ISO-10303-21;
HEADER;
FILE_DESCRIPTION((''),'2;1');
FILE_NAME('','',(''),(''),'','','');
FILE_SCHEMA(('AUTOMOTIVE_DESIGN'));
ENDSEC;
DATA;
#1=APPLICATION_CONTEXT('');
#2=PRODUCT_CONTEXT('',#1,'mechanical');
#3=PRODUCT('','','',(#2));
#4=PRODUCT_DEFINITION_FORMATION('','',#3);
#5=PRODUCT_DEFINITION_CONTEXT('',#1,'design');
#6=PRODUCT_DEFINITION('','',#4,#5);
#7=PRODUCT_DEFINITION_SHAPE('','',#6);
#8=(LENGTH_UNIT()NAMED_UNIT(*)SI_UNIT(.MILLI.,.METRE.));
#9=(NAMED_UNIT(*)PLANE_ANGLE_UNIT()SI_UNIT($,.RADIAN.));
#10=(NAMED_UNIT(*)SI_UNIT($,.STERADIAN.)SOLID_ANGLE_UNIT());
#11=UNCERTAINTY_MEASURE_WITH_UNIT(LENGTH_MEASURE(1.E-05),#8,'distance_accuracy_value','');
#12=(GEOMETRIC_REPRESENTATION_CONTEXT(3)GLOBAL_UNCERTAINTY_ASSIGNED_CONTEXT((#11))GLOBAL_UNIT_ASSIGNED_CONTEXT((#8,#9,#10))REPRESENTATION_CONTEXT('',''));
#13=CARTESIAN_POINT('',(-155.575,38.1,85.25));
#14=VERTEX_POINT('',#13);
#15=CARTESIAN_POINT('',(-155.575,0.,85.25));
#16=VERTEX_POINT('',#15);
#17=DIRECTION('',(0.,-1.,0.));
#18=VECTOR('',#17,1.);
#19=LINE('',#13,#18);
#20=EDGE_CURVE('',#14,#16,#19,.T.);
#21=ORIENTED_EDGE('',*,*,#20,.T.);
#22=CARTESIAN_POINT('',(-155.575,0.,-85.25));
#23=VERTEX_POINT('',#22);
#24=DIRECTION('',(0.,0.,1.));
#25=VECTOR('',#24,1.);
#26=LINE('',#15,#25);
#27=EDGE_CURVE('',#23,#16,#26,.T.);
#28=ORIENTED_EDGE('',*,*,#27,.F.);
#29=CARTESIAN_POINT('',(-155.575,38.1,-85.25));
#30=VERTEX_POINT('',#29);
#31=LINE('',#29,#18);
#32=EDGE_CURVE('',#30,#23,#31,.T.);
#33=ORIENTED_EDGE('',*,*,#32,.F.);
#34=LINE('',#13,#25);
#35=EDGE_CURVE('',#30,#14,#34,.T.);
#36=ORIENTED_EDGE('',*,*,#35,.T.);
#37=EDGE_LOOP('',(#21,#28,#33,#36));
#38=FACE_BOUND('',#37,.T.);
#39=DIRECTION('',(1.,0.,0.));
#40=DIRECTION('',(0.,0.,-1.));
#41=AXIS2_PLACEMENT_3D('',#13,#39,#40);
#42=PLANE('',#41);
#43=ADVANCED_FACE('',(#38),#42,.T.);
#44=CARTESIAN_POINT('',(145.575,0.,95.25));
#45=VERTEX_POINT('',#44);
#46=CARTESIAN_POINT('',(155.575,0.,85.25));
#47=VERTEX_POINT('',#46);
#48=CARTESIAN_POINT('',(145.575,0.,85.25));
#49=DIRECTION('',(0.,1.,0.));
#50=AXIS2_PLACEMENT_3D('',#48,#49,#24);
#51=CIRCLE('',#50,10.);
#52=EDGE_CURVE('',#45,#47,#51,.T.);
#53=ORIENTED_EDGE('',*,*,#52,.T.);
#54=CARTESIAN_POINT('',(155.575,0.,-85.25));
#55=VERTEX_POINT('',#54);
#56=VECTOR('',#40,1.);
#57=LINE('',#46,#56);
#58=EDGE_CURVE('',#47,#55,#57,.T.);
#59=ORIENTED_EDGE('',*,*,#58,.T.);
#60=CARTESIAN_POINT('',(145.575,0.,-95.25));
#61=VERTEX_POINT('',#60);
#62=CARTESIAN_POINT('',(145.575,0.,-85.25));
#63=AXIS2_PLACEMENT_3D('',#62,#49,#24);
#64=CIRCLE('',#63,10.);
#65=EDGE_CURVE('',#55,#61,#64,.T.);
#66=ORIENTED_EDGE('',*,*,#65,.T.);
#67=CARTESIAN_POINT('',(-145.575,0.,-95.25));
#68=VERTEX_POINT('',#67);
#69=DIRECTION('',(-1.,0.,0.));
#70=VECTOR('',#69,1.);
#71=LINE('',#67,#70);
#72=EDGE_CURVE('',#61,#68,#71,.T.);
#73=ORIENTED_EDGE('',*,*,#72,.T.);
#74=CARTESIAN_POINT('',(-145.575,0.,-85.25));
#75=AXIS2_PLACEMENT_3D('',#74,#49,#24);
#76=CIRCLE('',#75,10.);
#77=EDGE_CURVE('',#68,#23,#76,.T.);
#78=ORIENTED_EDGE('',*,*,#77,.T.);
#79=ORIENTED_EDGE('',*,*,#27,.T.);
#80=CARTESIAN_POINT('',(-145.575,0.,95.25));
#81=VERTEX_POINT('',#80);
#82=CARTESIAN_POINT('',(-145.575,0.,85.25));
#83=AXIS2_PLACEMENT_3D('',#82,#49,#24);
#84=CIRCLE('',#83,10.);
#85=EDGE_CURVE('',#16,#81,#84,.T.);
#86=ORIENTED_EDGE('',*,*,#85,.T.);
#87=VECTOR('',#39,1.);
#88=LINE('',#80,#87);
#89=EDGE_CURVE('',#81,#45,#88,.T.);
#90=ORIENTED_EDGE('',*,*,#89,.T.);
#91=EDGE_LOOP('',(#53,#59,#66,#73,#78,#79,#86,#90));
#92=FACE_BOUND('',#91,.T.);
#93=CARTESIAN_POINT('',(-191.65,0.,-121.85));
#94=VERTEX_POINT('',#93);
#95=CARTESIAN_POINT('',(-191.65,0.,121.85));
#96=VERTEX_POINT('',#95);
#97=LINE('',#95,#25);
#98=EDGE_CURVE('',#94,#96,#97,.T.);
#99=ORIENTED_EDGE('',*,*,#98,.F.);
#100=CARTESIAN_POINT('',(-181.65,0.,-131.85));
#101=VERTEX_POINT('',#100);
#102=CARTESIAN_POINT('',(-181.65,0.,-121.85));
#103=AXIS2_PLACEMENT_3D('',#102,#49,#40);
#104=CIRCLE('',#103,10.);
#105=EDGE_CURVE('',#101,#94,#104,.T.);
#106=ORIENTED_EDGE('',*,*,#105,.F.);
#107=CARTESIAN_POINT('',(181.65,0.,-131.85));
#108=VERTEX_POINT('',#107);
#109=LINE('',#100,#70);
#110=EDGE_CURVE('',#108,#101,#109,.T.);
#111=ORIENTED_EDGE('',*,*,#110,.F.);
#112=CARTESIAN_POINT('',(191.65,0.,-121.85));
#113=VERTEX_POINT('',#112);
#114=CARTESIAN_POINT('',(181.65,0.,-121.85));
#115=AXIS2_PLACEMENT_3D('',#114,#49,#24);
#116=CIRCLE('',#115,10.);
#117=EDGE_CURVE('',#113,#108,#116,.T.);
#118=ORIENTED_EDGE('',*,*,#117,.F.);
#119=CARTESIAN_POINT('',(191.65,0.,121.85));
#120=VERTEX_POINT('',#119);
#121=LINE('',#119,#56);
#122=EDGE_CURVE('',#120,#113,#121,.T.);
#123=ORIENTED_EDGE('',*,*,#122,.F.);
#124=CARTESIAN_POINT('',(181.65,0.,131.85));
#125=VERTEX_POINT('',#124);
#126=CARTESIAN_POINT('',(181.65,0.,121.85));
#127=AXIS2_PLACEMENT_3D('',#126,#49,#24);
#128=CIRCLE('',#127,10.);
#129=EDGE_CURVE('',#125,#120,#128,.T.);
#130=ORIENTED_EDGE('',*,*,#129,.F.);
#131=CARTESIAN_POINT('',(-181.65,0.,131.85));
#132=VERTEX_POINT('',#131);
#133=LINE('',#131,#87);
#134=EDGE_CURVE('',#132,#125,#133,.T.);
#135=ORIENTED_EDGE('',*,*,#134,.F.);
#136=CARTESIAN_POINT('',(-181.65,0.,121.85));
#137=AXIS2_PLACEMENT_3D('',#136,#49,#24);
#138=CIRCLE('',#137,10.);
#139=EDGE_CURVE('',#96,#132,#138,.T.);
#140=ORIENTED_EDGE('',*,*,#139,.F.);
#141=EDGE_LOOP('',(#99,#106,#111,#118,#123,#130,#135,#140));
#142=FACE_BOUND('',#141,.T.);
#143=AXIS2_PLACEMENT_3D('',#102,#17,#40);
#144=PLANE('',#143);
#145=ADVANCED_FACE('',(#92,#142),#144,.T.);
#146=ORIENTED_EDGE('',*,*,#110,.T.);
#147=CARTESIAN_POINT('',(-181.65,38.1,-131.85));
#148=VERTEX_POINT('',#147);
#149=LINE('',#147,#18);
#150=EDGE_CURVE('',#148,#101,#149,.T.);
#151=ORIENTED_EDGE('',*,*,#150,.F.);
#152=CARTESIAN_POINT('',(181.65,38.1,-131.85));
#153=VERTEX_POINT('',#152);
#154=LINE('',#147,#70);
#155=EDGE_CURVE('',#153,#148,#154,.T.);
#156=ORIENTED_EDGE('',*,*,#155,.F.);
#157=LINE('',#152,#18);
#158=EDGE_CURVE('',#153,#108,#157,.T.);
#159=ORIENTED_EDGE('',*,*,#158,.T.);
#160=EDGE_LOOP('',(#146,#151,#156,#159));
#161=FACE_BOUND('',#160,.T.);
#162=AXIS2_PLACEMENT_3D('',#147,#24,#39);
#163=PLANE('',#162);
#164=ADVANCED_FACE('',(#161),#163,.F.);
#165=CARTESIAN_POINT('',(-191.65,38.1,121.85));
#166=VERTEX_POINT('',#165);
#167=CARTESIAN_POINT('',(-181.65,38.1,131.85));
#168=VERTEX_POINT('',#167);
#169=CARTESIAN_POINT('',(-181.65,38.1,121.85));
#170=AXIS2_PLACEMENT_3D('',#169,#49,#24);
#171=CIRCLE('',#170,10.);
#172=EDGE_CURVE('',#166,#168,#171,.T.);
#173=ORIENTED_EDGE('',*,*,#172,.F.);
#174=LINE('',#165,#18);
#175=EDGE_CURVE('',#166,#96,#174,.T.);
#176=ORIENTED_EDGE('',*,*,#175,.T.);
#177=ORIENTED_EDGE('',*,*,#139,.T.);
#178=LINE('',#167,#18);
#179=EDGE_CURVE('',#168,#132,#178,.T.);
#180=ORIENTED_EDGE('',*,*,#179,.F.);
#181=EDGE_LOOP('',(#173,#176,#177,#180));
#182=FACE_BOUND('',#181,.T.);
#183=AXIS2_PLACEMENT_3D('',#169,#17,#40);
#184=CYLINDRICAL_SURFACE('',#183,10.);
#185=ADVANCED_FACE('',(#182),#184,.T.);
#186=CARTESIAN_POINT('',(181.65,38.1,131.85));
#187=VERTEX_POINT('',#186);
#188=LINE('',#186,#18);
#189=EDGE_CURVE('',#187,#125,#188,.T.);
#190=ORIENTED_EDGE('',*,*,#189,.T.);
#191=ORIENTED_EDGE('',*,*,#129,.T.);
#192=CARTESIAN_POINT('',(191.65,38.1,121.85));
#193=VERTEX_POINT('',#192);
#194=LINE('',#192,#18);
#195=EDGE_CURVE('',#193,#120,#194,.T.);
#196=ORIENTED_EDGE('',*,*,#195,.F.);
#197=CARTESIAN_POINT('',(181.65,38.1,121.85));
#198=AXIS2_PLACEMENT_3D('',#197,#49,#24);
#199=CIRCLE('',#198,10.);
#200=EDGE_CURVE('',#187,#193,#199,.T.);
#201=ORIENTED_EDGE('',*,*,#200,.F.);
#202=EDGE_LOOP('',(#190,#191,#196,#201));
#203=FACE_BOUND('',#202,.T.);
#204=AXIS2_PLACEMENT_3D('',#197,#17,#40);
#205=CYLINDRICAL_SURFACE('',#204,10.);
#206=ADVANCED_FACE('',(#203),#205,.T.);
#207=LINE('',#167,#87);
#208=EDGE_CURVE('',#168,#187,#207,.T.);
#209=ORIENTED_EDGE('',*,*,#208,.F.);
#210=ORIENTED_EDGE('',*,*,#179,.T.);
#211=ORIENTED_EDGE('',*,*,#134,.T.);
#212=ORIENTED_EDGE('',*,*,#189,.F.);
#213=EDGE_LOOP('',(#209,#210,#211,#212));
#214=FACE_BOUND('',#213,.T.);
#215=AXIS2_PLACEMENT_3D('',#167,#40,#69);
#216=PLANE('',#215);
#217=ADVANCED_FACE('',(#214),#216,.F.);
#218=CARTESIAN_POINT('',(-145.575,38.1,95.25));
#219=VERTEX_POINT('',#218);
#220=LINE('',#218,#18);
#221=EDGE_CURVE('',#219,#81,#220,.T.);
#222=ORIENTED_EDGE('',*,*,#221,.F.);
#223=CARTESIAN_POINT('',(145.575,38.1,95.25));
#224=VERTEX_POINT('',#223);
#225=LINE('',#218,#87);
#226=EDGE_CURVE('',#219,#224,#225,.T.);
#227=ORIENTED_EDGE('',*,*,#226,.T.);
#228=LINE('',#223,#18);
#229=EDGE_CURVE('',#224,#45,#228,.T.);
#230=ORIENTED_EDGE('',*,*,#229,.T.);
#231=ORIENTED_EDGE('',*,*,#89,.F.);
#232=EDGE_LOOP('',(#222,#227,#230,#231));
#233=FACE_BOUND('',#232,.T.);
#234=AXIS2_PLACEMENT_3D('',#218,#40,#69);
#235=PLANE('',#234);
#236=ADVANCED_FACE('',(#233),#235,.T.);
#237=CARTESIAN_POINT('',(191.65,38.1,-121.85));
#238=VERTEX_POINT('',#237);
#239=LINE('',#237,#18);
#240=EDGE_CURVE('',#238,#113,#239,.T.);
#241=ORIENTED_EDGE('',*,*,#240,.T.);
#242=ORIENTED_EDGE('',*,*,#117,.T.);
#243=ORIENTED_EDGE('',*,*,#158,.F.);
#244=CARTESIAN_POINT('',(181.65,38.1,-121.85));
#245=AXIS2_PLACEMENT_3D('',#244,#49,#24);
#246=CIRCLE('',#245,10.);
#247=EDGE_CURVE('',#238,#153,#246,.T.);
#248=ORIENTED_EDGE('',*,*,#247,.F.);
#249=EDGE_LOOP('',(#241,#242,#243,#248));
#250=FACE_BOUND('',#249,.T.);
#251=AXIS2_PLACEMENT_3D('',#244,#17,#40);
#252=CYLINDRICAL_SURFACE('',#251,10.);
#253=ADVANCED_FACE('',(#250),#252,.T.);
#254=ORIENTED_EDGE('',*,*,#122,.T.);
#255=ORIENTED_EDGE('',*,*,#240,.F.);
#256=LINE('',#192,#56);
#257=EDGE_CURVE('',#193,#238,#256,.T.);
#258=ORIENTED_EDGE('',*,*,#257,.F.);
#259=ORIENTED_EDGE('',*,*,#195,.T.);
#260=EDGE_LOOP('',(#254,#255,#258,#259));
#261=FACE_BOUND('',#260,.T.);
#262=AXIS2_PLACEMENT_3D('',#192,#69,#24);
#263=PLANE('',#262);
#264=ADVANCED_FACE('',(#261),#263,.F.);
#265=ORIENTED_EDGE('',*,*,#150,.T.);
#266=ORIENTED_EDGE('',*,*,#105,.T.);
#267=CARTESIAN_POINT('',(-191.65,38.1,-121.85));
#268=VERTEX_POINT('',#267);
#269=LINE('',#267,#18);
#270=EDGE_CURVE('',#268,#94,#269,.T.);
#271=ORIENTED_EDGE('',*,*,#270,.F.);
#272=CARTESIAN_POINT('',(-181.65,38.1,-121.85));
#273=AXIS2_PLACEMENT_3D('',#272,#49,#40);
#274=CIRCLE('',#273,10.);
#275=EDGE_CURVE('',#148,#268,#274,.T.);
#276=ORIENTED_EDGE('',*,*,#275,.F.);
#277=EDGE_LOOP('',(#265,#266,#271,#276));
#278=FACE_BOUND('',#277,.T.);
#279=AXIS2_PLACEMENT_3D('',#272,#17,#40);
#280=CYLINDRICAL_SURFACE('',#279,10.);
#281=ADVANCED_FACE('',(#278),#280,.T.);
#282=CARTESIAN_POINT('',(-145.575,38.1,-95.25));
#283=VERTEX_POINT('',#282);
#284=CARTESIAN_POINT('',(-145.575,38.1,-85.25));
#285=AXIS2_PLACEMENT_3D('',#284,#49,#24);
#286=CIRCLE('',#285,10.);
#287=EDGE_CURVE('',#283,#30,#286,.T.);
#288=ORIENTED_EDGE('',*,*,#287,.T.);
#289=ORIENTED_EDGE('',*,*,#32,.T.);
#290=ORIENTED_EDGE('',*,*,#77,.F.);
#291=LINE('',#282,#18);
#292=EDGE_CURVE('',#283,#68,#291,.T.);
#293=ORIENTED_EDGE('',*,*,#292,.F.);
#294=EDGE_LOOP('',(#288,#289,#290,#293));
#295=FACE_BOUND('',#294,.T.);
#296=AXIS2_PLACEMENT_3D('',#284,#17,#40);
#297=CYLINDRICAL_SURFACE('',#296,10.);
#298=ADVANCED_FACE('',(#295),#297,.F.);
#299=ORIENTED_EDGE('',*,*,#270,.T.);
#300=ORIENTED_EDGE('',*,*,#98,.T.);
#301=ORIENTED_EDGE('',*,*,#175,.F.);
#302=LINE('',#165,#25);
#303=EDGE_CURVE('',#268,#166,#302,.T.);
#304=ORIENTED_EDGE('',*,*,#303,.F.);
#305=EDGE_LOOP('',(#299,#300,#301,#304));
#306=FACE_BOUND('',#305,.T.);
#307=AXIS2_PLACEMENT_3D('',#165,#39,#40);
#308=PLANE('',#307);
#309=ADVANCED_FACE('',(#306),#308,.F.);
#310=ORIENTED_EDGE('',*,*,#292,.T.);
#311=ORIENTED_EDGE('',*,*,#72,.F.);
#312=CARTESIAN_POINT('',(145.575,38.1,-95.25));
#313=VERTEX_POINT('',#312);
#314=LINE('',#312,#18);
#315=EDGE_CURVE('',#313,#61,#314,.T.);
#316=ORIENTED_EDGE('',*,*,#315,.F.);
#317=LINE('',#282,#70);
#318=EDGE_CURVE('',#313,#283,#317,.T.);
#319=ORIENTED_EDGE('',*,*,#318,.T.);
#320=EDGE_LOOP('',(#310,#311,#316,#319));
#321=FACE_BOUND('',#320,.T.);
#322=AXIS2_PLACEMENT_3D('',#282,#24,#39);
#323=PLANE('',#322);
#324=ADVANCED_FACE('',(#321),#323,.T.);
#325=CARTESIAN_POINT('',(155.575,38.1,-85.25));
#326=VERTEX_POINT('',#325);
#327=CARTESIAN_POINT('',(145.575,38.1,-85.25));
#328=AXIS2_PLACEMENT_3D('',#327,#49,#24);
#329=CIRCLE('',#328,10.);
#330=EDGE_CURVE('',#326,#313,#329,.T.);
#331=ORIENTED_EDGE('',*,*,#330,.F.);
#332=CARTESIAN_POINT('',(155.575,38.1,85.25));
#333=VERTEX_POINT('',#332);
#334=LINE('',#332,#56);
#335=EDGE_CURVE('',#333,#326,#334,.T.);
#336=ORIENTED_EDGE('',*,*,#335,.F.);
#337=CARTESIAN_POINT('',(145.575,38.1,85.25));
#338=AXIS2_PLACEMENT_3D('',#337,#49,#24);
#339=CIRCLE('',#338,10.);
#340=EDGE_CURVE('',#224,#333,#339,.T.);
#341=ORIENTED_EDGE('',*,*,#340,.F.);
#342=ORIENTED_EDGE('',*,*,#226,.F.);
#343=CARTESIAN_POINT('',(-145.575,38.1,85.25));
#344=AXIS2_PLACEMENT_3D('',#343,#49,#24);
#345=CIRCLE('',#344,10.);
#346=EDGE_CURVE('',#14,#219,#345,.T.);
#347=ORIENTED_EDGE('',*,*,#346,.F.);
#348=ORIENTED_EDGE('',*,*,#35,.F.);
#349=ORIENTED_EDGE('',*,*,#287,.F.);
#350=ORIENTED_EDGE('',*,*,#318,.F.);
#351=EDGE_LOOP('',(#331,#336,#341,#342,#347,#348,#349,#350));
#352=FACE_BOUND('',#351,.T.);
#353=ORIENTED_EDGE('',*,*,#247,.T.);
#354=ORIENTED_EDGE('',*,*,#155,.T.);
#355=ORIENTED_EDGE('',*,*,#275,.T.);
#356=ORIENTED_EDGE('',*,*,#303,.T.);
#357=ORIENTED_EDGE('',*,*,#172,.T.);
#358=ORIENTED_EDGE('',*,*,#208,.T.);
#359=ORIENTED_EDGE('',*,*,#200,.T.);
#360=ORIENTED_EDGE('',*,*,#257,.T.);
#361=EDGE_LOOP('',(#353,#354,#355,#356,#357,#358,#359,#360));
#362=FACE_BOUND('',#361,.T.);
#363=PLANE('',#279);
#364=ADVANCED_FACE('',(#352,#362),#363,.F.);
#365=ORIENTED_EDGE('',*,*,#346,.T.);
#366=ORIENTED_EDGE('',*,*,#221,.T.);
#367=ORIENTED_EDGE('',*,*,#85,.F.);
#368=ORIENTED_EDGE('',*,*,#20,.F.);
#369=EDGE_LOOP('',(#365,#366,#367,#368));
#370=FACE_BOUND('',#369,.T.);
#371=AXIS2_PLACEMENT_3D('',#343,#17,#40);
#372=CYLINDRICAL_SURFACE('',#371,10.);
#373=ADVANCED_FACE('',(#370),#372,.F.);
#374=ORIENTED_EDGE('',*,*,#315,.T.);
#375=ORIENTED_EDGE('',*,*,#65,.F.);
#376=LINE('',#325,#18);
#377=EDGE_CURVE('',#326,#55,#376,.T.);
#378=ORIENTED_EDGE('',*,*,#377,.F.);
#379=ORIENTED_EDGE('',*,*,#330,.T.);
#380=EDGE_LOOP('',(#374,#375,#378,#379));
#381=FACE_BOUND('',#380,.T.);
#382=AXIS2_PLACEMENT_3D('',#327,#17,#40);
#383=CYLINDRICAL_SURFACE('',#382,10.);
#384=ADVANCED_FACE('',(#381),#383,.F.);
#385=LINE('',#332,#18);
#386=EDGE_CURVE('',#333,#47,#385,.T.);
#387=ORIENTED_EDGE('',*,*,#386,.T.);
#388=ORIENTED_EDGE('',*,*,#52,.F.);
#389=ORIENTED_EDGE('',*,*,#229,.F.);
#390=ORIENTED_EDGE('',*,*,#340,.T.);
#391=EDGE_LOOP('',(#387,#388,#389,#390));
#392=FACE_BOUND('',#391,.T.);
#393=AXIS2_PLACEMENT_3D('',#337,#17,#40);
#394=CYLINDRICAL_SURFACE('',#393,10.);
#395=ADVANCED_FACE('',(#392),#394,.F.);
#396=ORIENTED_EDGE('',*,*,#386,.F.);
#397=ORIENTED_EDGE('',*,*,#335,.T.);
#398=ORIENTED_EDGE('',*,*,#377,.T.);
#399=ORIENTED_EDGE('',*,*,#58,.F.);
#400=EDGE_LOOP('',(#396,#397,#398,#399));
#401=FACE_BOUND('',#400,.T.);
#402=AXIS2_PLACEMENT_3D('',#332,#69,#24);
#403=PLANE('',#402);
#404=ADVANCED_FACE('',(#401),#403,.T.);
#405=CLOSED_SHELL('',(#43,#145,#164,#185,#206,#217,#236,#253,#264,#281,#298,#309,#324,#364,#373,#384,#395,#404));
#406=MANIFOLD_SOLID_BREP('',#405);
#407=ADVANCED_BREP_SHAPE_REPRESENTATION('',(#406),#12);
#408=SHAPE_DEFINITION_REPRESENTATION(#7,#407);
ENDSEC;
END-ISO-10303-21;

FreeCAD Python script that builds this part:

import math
import FreeCAD as App
import Part
import Sketcher

V = App.Vector

doc = App.newDocument("Part")
body = doc.addObject("PartDesign::Body", "Body")

# Sketch on XZ plane
sketch1 = doc.addObject("Sketcher::SketchObject", "Sketch")
body.addObject(sketch1)
sketch1.AttachmentSupport = (doc.XZ_Plane, [""])
sketch1.MapMode = "FlatFace"
sketch1.addGeometry([
    Part.LineSegment(V(-182, 132, 0), V(182, 132, 0)),  # 0
    Part.ArcOfCircle(Part.Circle(V(182, 122, 0), V(0, 0, 1), 10), math.radians(0), math.radians(90)),  # 1
    Part.LineSegment(V(192, 122, 0), V(192, -122, 0)),  # 2
    Part.ArcOfCircle(Part.Circle(V(182, -122, 0), V(0, 0, 1), 10), math.radians(-90), math.radians(0)),  # 3
    Part.LineSegment(V(182, -132, 0), V(-182, -132, 0)),  # 4
    Part.ArcOfCircle(Part.Circle(V(-182, -122, 0), V(0, 0, 1), 10), math.radians(180), math.radians(270)),  # 5
    Part.LineSegment(V(-192, -122, 0), V(-192, 122, 0)),  # 6
    Part.ArcOfCircle(Part.Circle(V(-182, 122, 0), V(0, 0, 1), 10), math.radians(90), math.radians(180)),  # 7
    Part.LineSegment(V(146, 95, 0), V(-146, 95, 0)),  # 8
    Part.ArcOfCircle(Part.Circle(V(-146, 85, 0), V(0, 0, 1), 10), math.radians(90), math.radians(180)),  # 9
    Part.LineSegment(V(-156, 85, 0), V(-156, -85, 0)),  # 10
    Part.ArcOfCircle(Part.Circle(V(-146, -85, 0), V(0, 0, 1), 10), math.radians(180), math.radians(270)),  # 11
    Part.LineSegment(V(-146, -95, 0), V(146, -95, 0)),  # 12
    Part.ArcOfCircle(Part.Circle(V(146, -85, 0), V(0, 0, 1), 10), math.radians(-90), math.radians(0)),  # 13
    Part.LineSegment(V(156, -85, 0), V(156, 85, 0)),  # 14
    Part.ArcOfCircle(Part.Circle(V(146, 85, 0), V(0, 0, 1), 10), math.radians(0), math.radians(90)),  # 15
], False)
sketch1.addConstraint([
    Sketcher.Constraint("Tangent", 0, 2, 1, 2),
    Sketcher.Constraint("Tangent", 1, 1, 2, 1),
    Sketcher.Constraint("Tangent", 2, 2, 3, 2),
    Sketcher.Constraint("Tangent", 3, 1, 4, 1),
    Sketcher.Constraint("Tangent", 4, 2, 5, 2),
    Sketcher.Constraint("Tangent", 5, 1, 6, 1),
    Sketcher.Constraint("Tangent", 6, 2, 7, 2),
    Sketcher.Constraint("Tangent", 7, 1, 0, 1),
    Sketcher.Constraint("Tangent", 8, 2, 9, 1),
    Sketcher.Constraint("Tangent", 9, 2, 10, 1),
    Sketcher.Constraint("Tangent", 10, 2, 11, 1),
    Sketcher.Constraint("Tangent", 11, 2, 12, 1),
    Sketcher.Constraint("Tangent", 12, 2, 13, 1),
    Sketcher.Constraint("Tangent", 13, 2, 14, 1),
    Sketcher.Constraint("Tangent", 14, 2, 15, 1),
    Sketcher.Constraint("Tangent", 15, 2, 8, 1),
    Sketcher.Constraint("Horizontal", 0),
    Sketcher.Constraint("Vertical", 2),
    Sketcher.Constraint("Horizontal", 4),
    Sketcher.Constraint("Vertical", 6),
    Sketcher.Constraint("Horizontal", 8),
    Sketcher.Constraint("Vertical", 10),
    Sketcher.Constraint("Horizontal", 12),
    Sketcher.Constraint("Vertical", 14),
    Sketcher.Constraint("Equal", 1, 3),
    Sketcher.Constraint("Equal", 3, 5),
    Sketcher.Constraint("Equal", 5, 7),
    Sketcher.Constraint("Equal", 7, 9),
    Sketcher.Constraint("Equal", 9, 11),
    Sketcher.Constraint("Equal", 11, 13),
    Sketcher.Constraint("Equal", 13, 15),
    Sketcher.Constraint("Symmetric", 1, 3, 5, 3, -1, 1),
    Sketcher.Constraint("Symmetric", 9, 3, 13, 3, -1, 1),
    Sketcher.Constraint("Radius", 1, 10.0),
    Sketcher.Constraint("DistanceX", 0, 1, 0, 2, 363.3),
    Sketcher.Constraint("DistanceY", 2, 2, 2, 1, 243.7),
    Sketcher.Constraint("DistanceY", 10, 2, 10, 1, 170.5),
    Sketcher.Constraint("DistanceX", 8, 2, 8, 1, 291.15),
])
pad1 = doc.addObject("PartDesign::Pad", "Pad")
body.addObject(pad1)
pad1.Profile = sketch1
pad1.Length = 38.1
pad1.Reversed = True

doc.recompute()
